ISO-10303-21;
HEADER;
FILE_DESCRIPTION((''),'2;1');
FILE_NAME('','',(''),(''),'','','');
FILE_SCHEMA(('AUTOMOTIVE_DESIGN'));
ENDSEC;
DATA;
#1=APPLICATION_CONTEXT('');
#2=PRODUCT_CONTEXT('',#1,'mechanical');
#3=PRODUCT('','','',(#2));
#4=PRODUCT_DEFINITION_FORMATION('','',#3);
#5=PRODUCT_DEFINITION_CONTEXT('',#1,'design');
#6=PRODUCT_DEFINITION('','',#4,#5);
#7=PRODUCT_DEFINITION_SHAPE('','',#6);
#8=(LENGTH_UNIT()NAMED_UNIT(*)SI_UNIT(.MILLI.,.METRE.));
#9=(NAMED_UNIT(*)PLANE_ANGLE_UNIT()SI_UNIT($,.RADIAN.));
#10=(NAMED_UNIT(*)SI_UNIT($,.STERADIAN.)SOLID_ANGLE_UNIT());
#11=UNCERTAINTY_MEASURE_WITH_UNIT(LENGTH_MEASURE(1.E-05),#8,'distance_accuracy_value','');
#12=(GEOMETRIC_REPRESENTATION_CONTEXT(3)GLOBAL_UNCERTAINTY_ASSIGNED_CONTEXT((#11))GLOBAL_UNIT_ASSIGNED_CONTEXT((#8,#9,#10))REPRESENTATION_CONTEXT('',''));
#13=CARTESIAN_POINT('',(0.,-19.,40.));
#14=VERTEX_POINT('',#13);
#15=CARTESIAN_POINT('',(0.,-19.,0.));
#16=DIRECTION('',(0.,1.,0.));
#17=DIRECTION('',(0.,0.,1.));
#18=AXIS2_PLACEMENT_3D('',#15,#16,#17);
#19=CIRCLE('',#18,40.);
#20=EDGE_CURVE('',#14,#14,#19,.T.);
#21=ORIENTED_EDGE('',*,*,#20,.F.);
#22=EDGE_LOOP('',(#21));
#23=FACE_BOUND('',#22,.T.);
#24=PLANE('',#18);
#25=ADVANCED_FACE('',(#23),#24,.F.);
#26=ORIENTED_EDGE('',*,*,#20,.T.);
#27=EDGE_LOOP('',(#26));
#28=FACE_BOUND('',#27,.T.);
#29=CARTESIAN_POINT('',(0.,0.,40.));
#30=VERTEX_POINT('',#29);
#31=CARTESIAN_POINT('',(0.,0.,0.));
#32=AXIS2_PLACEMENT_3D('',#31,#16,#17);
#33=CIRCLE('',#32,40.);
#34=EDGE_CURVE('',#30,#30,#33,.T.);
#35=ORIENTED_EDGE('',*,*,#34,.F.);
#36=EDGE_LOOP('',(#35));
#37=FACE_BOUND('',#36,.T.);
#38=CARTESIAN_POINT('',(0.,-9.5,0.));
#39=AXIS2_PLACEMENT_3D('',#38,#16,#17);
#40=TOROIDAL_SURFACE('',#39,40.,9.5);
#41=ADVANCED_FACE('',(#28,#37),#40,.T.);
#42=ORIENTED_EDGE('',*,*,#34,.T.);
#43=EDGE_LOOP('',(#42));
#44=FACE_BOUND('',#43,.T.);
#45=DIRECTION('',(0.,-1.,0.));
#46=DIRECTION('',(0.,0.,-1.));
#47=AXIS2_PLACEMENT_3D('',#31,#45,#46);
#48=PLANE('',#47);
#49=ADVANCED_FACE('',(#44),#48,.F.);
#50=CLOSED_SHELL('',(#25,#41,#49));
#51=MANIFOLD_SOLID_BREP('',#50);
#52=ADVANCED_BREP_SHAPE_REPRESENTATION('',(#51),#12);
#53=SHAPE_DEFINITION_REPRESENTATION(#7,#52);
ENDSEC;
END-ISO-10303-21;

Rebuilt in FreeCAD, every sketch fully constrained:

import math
import FreeCAD as App
import Part
import Sketcher

V = App.Vector
Q = App.Units.Quantity

doc = App.newDocument("Part")
params = doc.addObject("Spreadsheet::Sheet", "Params")
for row, (alias, value) in enumerate([
    ("sketch1_radius", "9.5 mm"),
    ("sketch1_width", "40 mm"),
    ("revolution_angle", "360 deg"),
], start=1):
    params.set(f"A{row}", alias)
    params.set(f"B{row}", "=" + value)
    params.setAlias(f"B{row}", alias)

body = doc.addObject("PartDesign::Body", "Body")

# Sketch on XY plane
sketch1 = body.newObject("Sketcher::SketchObject", "Sketch")
sketch1.AttachmentSupport = (doc.getObject("XY_Plane"), [""])
sketch1.MapMode = "FlatFace"
sketch1.addGeometry([
    Part.LineSegment(V(40, 0, 0), V(0, 0, 0)),
    Part.LineSegment(V(0, 0, 0), V(0, -19, 0)),
    Part.LineSegment(V(0, -19, 0), V(40, -19, 0)),
    Part.ArcOfCircle(Part.Circle(V(40, -10, 0), V(0, 0, 1), 10), math.radians(-90), math.radians(90)),
], False)
sketch1.addConstraint([
    Sketcher.Constraint("Coincident", 0, 2, 1, 1),
    Sketcher.Constraint("Coincident", 1, 2, 2, 1),
    Sketcher.Constraint("Tangent", 2, 2, 3, 1),
    Sketcher.Constraint("Tangent", 3, 2, 0, 1),
    Sketcher.Constraint("Horizontal", 0),
    Sketcher.Constraint("Vertical", 1),
    Sketcher.Constraint("Horizontal", 2),
    Sketcher.Constraint("Coincident", 0, 2, -1, 1),
    Sketcher.Constraint("Radius", 3, Q("9.5 mm")),
    Sketcher.Constraint("DistanceX", 0, 2, 0, 1, Q("40 mm")),
])
sketch1.setExpression("Constraints[8]", "Params.sketch1_radius")
sketch1.setExpression("Constraints[9]", "Params.sketch1_width")
revolution = body.newObject("PartDesign::Revolution", "Revolution")
revolution.Profile = sketch1
revolution.ReferenceAxis = (sketch1, ["V_Axis"])
revolution.setExpression("Angle", "Params.revolution_angle")

doc.recompute()
